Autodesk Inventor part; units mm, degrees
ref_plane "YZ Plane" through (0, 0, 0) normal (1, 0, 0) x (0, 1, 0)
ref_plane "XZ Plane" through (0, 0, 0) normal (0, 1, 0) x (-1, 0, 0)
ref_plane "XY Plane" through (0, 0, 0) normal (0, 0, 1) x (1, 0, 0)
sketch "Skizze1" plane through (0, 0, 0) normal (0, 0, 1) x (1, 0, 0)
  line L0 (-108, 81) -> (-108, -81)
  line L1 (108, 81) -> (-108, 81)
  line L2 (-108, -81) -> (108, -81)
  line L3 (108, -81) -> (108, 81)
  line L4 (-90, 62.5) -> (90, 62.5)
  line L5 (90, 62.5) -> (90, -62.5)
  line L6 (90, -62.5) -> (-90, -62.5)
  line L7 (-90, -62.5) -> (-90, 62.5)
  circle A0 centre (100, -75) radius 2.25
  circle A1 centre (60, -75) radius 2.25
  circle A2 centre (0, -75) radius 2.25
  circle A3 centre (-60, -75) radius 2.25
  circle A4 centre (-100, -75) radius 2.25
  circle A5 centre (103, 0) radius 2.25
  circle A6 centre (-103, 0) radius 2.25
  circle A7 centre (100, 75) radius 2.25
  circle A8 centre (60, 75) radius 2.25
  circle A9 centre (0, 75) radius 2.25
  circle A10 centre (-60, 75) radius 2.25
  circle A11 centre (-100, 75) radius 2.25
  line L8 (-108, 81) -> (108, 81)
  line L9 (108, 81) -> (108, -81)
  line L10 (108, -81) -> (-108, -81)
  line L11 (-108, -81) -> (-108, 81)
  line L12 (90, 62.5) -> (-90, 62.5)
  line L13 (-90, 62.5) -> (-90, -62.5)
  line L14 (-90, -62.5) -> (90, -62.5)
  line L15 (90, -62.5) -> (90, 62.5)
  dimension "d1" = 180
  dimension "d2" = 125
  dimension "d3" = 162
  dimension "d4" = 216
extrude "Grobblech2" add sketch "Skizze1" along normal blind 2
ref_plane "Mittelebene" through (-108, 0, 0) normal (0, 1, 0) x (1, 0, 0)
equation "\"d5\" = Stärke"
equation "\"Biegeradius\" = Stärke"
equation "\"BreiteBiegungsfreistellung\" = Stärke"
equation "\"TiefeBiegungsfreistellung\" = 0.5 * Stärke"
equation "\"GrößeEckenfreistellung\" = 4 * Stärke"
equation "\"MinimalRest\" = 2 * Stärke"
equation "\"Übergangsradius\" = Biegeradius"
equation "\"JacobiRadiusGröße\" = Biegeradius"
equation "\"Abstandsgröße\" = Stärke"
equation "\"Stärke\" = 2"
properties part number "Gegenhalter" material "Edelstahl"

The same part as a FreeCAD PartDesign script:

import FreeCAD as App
import Part
import Sketcher
from FreeCAD import Vector
Q = App.Units.Quantity

doc = App.newDocument("Part")
body = doc.addObject("PartDesign::Body", "Body")

sketch1 = body.newObject("Sketcher::SketchObject", "Sketch")
sketch1.AttachmentSupport = (doc.getObject("XY_Plane"), [""])
sketch1.MapMode = "FlatFace"
sketch1.addGeometry([
    Part.LineSegment(Vector(108, 81, 0), Vector(-108, 81, 0)),
    Part.LineSegment(Vector(-108, 81, 0), Vector(-108, -81, 0)),
    Part.LineSegment(Vector(-108, -81, 0), Vector(108, -81, 0)),
    Part.LineSegment(Vector(108, -81, 0), Vector(108, 81, 0)),
    Part.Circle(Vector(-100, -75, 0), Vector(0, 0, 1), 2.2),
    Part.Circle(Vector(-60, -75, 0), Vector(0, 0, 1), 2.2),
    Part.Circle(Vector(0, -75, 0), Vector(0, 0, 1), 2.2),
    Part.Circle(Vector(60, -75, 0), Vector(0, 0, 1), 2.2),
    Part.Circle(Vector(100, -75, 0), Vector(0, 0, 1), 2.2),
    Part.Circle(Vector(-103, 0, 0), Vector(0, 0, 1), 2.2),
    Part.Circle(Vector(-100, 75, 0), Vector(0, 0, 1), 2.2),
    Part.Circle(Vector(-60, 75, 0), Vector(0, 0, 1), 2.2),
    Part.LineSegment(Vector(-90, -62.5, 0), Vector(-90, 62.5, 0)),
    Part.LineSegment(Vector(-90, 62.5, 0), Vector(90, 62.5, 0)),
    Part.LineSegment(Vector(90, 62.5, 0), Vector(90, -62.5, 0)),
    Part.LineSegment(Vector(90, -62.5, 0), Vector(-90, -62.5, 0)),
    Part.Circle(Vector(103, 0, 0), Vector(0, 0, 1), 2.2),
    Part.Circle(Vector(0, 75, 0), Vector(0, 0, 1), 2.2),
    Part.Circle(Vector(60, 75, 0), Vector(0, 0, 1), 2.2),
    Part.Circle(Vector(100, 75, 0), Vector(0, 0, 1), 2.2),
], False)
sketch1.addConstraint([
    Sketcher.Constraint("Coincident", 0, 2, 1, 1),
    Sketcher.Constraint("Coincident", 1, 2, 2, 1),
    Sketcher.Constraint("Coincident", 2, 2, 3, 1),
    Sketcher.Constraint("Coincident", 3, 2, 0, 1),
    Sketcher.Constraint("Coincident", 12, 2, 13, 1),
    Sketcher.Constraint("Coincident", 13, 2, 14, 1),
    Sketcher.Constraint("Coincident", 14, 2, 15, 1),
    Sketcher.Constraint("Coincident", 15, 2, 12, 1),
    Sketcher.Constraint("Horizontal", 0),
    Sketcher.Constraint("Vertical", 1),
    Sketcher.Constraint("Horizontal", 2),
    Sketcher.Constraint("Vertical", 3),
    Sketcher.Constraint("Vertical", 12),
    Sketcher.Constraint("Horizontal", 13),
    Sketcher.Constraint("Vertical", 14),
    Sketcher.Constraint("Horizontal", 15),
    Sketcher.Constraint("Equal", 4, 5),
    Sketcher.Constraint("Equal", 5, 6),
    Sketcher.Constraint("Equal", 6, 7),
    Sketcher.Constraint("Equal", 7, 8),
    Sketcher.Constraint("Equal", 8, 9),
    Sketcher.Constraint("Equal", 9, 10),
    Sketcher.Constraint("Equal", 10, 11),
    Sketcher.Constraint("Equal", 11, 16),
    Sketcher.Constraint("Equal", 16, 17),
    Sketcher.Constraint("Equal", 17, 18),
    Sketcher.Constraint("Equal", 18, 19),
    Sketcher.Constraint("Symmetric", 8, 3, 10, 3, -1, 1),
    Sketcher.Constraint("Symmetric", 7, 3, 11, 3, -1, 1),
    Sketcher.Constraint("Symmetric", 9, 3, 16, 3, -1, 1),
    Sketcher.Constraint("Symmetric", 6, 3, 17, 3, -1, 1),
    Sketcher.Constraint("Symmetric", 5, 3, 18, 3, -1, 1),
    Sketcher.Constraint("Symmetric", 4, 3, 19, 3, -1, 1),
    Sketcher.Constraint("Symmetric", 0, 2, 2, 2, -1, 1),
    Sketcher.Constraint("Symmetric", 12, 2, 14, 2, -1, 1),
    Sketcher.Constraint("Symmetric", 5, 3, 7, 3, -2),
    Sketcher.Constraint("Symmetric", 4, 3, 8, 3, -2),
    Sketcher.Constraint("PointOnObject", 6, 3, -2),
    Sketcher.Constraint("PointOnObject", 9, 3, -1),
    Sketcher.Constraint("Horizontal", 4, 3, 5, 3),
    Sketcher.Constraint("Horizontal", 5, 3, 6, 3),
    Sketcher.Constraint("DistanceX", 0, 2, 0, 1, Q("216 mm")),
    Sketcher.Constraint("DistanceX", 13, 1, 13, 2, Q("180 mm")),
    Sketcher.Constraint("DistanceY", 1, 2, 1, 1, Q("162 mm")),
    Sketcher.Constraint("DistanceY", 12, 1, 12, 2, Q("125 mm")),
    Sketcher.Constraint("Diameter", 4, Q("4.5 mm")),
    Sketcher.Constraint("DistanceX", 4, 3, -1, 1, Q("100 mm")),
    Sketcher.Constraint("DistanceY", 4, 3, -1, 1, Q("75 mm")),
    Sketcher.Constraint("DistanceX", 5, 3, -1, 1, Q("60 mm")),
    Sketcher.Constraint("DistanceX", 9, 3, -1, 1, Q("103 mm")),
])
pad1 = body.newObject("PartDesign::Pad", "Pad")
pad1.Profile = sketch1
pad1.Length = 2

doc.recompute()
